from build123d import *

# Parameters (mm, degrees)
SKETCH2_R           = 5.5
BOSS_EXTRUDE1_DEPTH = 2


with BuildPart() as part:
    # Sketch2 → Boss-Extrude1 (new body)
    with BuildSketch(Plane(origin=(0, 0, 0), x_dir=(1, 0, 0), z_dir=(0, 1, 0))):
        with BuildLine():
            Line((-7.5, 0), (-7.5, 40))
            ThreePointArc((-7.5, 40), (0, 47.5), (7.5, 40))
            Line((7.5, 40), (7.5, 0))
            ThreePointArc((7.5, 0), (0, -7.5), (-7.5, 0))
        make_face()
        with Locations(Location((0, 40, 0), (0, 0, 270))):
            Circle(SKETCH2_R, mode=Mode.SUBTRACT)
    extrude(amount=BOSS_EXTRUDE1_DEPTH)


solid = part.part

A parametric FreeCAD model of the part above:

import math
import FreeCAD as App
import Part
import Sketcher

V = App.Vector

doc = App.newDocument("Part")
params = doc.addObject("Spreadsheet::Sheet", "Params")
for row, (alias, value) in enumerate([
    ("sketch1_diameter", "11 mm"),
    ("sketch1_radius", "7.5 mm"),
    ("sketch1_height", "40 mm"),
    ("pad1_length", "2 mm"),
], start=1):
    params.set(f"A{row}", alias)
    params.set(f"B{row}", "=" + value)
    params.setAlias(f"B{row}", alias)

body = doc.addObject("PartDesign::Body", "Body")

# Sketch on XZ plane
sketch1 = body.newObject("Sketcher::SketchObject", "Sketch")
sketch1.AttachmentSupport = (doc.getObject("XZ_Plane"), [""])
sketch1.MapMode = "FlatFace"
sketch1.addGeometry(Part.LineSegment(V(-8, -40, 0), V(-8, 0, 0)), False)
sketch1.addGeometry(Part.ArcOfCircle(Part.Circle(V(0, 0, 0), V(0, 0, 1), 8), math.radians(0), math.radians(180)), False)
sketch1.addGeometry(Part.LineSegment(V(8, 0, 0), V(8, -40, 0)), False)
sketch1.addGeometry(Part.ArcOfCircle(Part.Circle(V(0, -40, 0), V(0, 0, 1), 8), math.radians(180), math.radians(360)), False)
sketch1.addGeometry(Part.Circle(V(0, -40, 0), V(0, 0, 1), 6), False)
sketch1.addConstraint(Sketcher.Constraint("Tangent", 0, 2, 1, 2))
sketch1.addConstraint(Sketcher.Constraint("Tangent", 1, 1, 2, 1))
sketch1.addConstraint(Sketcher.Constraint("Tangent", 2, 2, 3, 2))
sketch1.addConstraint(Sketcher.Constraint("Tangent", 3, 1, 0, 1))
sketch1.addConstraint(Sketcher.Constraint("Vertical", 0))
sketch1.addConstraint(Sketcher.Constraint("Vertical", 2))
sketch1.addConstraint(Sketcher.Constraint("Coincident", 1, 3, -1, 1))
sketch1.addConstraint(Sketcher.Constraint("Coincident", 4, 3, 3, 3))
sketch1.addConstraint(Sketcher.Constraint("Diameter", 4, 11.0))
sketch1.addConstraint(Sketcher.Constraint("Radius", 1, 7.5))
sketch1.addConstraint(Sketcher.Constraint("DistanceY", 0, 1, 0, 2, 40.0))
sketch1.setExpression("Constraints[8]", "Params.sketch1_diameter")
sketch1.setExpression("Constraints[9]", "Params.sketch1_radius")
sketch1.setExpression("Constraints[10]", "Params.sketch1_height")
pad1 = body.newObject("PartDesign::Pad", "Pad")
pad1.Profile = sketch1
pad1.setExpression("Length", "Params.pad1_length")
pad1.Reversed = True

doc.recompute()
